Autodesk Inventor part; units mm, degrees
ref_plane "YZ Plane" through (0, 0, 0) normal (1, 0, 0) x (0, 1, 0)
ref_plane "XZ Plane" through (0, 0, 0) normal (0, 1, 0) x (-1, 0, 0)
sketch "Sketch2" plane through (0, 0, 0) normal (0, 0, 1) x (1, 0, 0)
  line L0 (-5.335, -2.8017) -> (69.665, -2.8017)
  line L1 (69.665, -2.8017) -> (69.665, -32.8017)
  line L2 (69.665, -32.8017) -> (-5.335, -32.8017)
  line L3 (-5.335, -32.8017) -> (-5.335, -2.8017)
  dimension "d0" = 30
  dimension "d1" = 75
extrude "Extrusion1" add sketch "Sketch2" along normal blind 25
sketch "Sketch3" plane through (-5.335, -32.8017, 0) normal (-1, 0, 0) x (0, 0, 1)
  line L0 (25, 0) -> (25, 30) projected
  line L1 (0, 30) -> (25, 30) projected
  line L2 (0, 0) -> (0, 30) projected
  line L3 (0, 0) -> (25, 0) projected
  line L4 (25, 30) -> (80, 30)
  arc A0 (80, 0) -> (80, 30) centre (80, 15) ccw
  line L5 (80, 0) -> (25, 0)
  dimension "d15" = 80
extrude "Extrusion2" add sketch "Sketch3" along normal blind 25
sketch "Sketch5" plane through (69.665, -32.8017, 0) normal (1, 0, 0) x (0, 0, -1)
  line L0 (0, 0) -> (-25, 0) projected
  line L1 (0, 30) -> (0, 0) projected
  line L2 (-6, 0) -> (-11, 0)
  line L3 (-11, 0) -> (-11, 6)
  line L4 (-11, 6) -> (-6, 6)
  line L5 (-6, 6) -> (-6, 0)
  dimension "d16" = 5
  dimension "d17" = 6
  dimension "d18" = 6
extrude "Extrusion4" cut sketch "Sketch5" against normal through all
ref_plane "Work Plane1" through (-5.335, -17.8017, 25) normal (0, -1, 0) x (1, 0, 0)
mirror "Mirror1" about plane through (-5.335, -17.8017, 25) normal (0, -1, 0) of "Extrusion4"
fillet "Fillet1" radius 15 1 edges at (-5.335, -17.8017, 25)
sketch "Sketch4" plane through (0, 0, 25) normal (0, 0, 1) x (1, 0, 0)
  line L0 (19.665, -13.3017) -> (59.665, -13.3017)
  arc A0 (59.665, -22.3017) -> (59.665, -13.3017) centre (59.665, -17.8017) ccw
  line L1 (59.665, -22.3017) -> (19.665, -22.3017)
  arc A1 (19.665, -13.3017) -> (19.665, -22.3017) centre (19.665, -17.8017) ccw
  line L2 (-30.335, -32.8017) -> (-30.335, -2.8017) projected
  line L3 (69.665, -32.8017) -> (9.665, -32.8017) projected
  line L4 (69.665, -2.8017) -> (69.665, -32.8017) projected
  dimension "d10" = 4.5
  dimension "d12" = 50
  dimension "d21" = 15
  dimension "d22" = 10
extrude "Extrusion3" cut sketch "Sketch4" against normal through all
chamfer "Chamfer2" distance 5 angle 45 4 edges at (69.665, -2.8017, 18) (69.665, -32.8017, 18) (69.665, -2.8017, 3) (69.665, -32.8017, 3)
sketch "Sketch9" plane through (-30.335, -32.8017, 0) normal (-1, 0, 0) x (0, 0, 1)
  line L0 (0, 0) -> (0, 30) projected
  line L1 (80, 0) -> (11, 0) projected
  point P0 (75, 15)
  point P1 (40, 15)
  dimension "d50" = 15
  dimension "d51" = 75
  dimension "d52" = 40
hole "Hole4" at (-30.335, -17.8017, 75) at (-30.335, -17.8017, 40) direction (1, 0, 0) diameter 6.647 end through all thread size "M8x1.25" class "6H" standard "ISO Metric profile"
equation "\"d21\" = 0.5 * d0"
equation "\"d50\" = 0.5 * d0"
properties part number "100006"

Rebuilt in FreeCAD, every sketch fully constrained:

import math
import FreeCAD as App
import Part
import Sketcher


def edges_at(feature, points):
    """Names of the edges that pass closest to the given points."""
    edges = feature.Shape.Edges
    near = lambda p: min(range(len(edges)), key=lambda i: edges[i].distToShape(Part.Vertex(*p))[0])
    return sorted({f"Edge{near(p) + 1}" for p in points})


def add_polygon(sketch, points):
    """Adds a closed chain of lines whose ends are joined by coincident constraints."""
    first, n = sketch.GeometryCount, len(points)
    for a, b in zip(points, points[1:] + points[:1]):
        sketch.addGeometry(Part.LineSegment(App.Vector(*a, 0), App.Vector(*b, 0)), False)
    for i in range(n):
        sketch.addConstraint(Sketcher.Constraint("Coincident", first + i, 2, first + (i + 1) % n, 1))

doc = App.newDocument("Part")
body = doc.addObject("PartDesign::Body", "Body")

# Sketch on XY plane
sketch1 = doc.addObject("Sketcher::SketchObject", "Sketch")
body.addObject(sketch1)
sketch1.AttachmentSupport = (doc.XY_Plane, [""])
sketch1.MapMode = "FlatFace"
add_polygon(sketch1, [(70, -3), (-5, -3), (-5, -33), (70, -33)])  # lines 0-3
sketch1.addConstraint([
    Sketcher.Constraint("Horizontal", 0),
    Sketcher.Constraint("Vertical", 1),
    Sketcher.Constraint("Horizontal", 2),
    Sketcher.Constraint("Vertical", 3),
    Sketcher.Constraint("DistanceX", 0, 2, 0, 1, 75.0),
    Sketcher.Constraint("DistanceY", 1, 2, 1, 1, 30.0),
    Sketcher.Constraint("DistanceX", 0, 2, -1, 1, 5.335),
    Sketcher.Constraint("DistanceY", 0, 2, -1, 1, 2.8017),
])
pad1 = doc.addObject("PartDesign::Pad", "Pad")
body.addObject(pad1)
pad1.Profile = sketch1
pad1.Length = 25

# Sketch on YZ plane
sketch2 = doc.addObject("Sketcher::SketchObject", "Sketch001")
body.addObject(sketch2)
sketch2.AttachmentSupport = (doc.YZ_Plane, [""])
sketch2.MapMode = "FlatFace"
sketch2.AttachmentOffset = App.Placement(App.Vector(0, 0, -5.335), App.Rotation())
sketch2.addGeometry([
    Part.LineSegment(App.Vector(-33, 0, 0), App.Vector(-33, 80, 0)),
    Part.ArcOfCircle(Part.Circle(App.Vector(-18, 80, 0), App.Vector(0, 0, 1), 15), math.radians(0), math.radians(180)),
    Part.LineSegment(App.Vector(-3, 80, 0), App.Vector(-3, 0, 0)),
    Part.LineSegment(App.Vector(-3, 0, 0), App.Vector(-33, 0, 0)),
], False)
sketch2.addConstraint([
    Sketcher.Constraint("Tangent", 0, 2, 1, 2),
    Sketcher.Constraint("Tangent", 1, 1, 2, 1),
    Sketcher.Constraint("Coincident", 2, 2, 3, 1),
    Sketcher.Constraint("Coincident", 3, 2, 0, 1),
    Sketcher.Constraint("Vertical", 0),
    Sketcher.Constraint("Vertical", 2),
    Sketcher.Constraint("Horizontal", 3),
    Sketcher.Constraint("PointOnObject", 2, 2, -1),
    Sketcher.Constraint("DistanceY", 0, 1, 0, 2, 80.0),
    Sketcher.Constraint("Radius", 1, 15.0),
    Sketcher.Constraint("DistanceX", 1, 3, -1, 1, 17.8017),
])
pad2 = doc.addObject("PartDesign::Pad", "Pad001")
body.addObject(pad2)
pad2.Profile = sketch2
pad2.Length = 25
pad2.Reversed = True

# Sketch on YZ plane
sketch3 = doc.addObject("Sketcher::SketchObject", "Sketch002")
body.addObject(sketch3)
sketch3.AttachmentSupport = (doc.YZ_Plane, [""])
sketch3.MapMode = "FlatFace"
sketch3.AttachmentOffset = App.Placement(App.Vector(0, 0, 69.665), App.Rotation())
add_polygon(sketch3, [(-33, 11), (-33, 6), (-27, 6), (-27, 11)])  # lines 0-3
sketch3.addConstraint([
    Sketcher.Constraint("Vertical", 0),
    Sketcher.Constraint("Horizontal", 1),
    Sketcher.Constraint("Vertical", 2),
    Sketcher.Constraint("Horizontal", 3),
    Sketcher.Constraint("DistanceX", 1, 1, 1, 2, 6.0),
    Sketcher.Constraint("DistanceY", 0, 2, 0, 1, 5.0),
    Sketcher.Constraint("DistanceY", -1, 1, 0, 2, 6.0),
    Sketcher.Constraint("DistanceX", 0, 2, -1, 1, 32.8017),
])
pocket1 = doc.addObject("PartDesign::Pocket", "Pocket")
body.addObject(pocket1)
pocket1.Profile = sketch3
pocket1.Type = "ThroughAll"
doc.recompute()

datumplane = doc.addObject("PartDesign::Plane", "DatumPlane")
body.addObject(datumplane)
datumplane.AttachmentSupport = (doc.XZ_Plane, [""])
datumplane.MapMode = "FlatFace"
datumplane.AttachmentOffset = App.Placement(App.Vector(0, 0, 17.8017), App.Rotation())
mirrored = doc.addObject("PartDesign::Mirrored", "Mirrored")
body.addObject(mirrored)
mirrored.Originals = [pocket1]
mirrored.MirrorPlane = (datumplane, [""])
body.Tip = mirrored
doc.recompute()

fillet = doc.addObject("PartDesign::Fillet", "Fillet")
body.addObject(fillet)
fillet.Base = (mirrored, edges_at(mirrored, [(-5.335, -17.802, 25)]))
fillet.Radius = 15

# Sketch on XY plane
sketch4 = doc.addObject("Sketcher::SketchObject", "Sketch003")
body.addObject(sketch4)
sketch4.AttachmentSupport = (doc.XY_Plane, [""])
sketch4.MapMode = "FlatFace"
sketch4.AttachmentOffset = App.Placement(App.Vector(0, 0, 25), App.Rotation())
sketch4.addGeometry([
    Part.LineSegment(App.Vector(59.7, -13.3, 0), App.Vector(19.7, -13.3, 0)),
    Part.ArcOfCircle(Part.Circle(App.Vector(19.7, -17.8, 0), App.Vector(0, 0, 1), 4.5), math.radians(90), math.radians(270)),
    Part.LineSegment(App.Vector(19.7, -22.3, 0), App.Vector(59.7, -22.3, 0)),
    Part.ArcOfCircle(Part.Circle(App.Vector(59.7, -17.8, 0), App.Vector(0, 0, 1), 4.5), math.radians(-90), math.radians(90)),
], False)
sketch4.addConstraint([
    Sketcher.Constraint("Tangent", 0, 2, 1, 1),
    Sketcher.Constraint("Tangent", 1, 2, 2, 1),
    Sketcher.Constraint("Tangent", 2, 2, 3, 1),
    Sketcher.Constraint("Tangent", 3, 2, 0, 1),
    Sketcher.Constraint("Horizontal", 0),
    Sketcher.Constraint("Horizontal", 2),
    Sketcher.Constraint("Radius", 1, 4.5),
    Sketcher.Constraint("DistanceX", 0, 2, 0, 1, 40.0),
    Sketcher.Constraint("DistanceX", -1, 1, 1, 3, 19.665),
    Sketcher.Constraint("DistanceY", 1, 3, -1, 1, 17.8017),
])
pocket2 = doc.addObject("PartDesign::Pocket", "Pocket001")
body.addObject(pocket2)
pocket2.Profile = sketch4
pocket2.Type = "ThroughAll"
doc.recompute()

chamfer = doc.addObject("PartDesign::Chamfer", "Chamfer")
body.addObject(chamfer)
chamfer.Base = (pocket2, edges_at(pocket2, [
    (69.665, -2.802, 18),
    (69.665, -32.802, 18),
    (69.665, -2.802, 3),
    (69.665, -32.802, 3),
]))
chamfer.Size = 5

# Sketch on YZ plane
sketch5 = doc.addObject("Sketcher::SketchObject", "Sketch004")
body.addObject(sketch5)
sketch5.AttachmentSupport = (doc.YZ_Plane, [""])
sketch5.MapMode = "FlatFace"
sketch5.AttachmentOffset = App.Placement(App.Vector(0, 0, -30.335), App.Rotation())
sketch5.addGeometry([
    Part.Circle(App.Vector(-17.8, 75, 0), App.Vector(0, 0, 1), 3.3),
    Part.Circle(App.Vector(-17.8, 40, 0), App.Vector(0, 0, 1), 3.3),
], False)
sketch5.addConstraint([
    Sketcher.Constraint("Equal", 0, 1),
    Sketcher.Constraint("Vertical", 0, 3, 1, 3),
    Sketcher.Constraint("Diameter", 0, 6.647),
    Sketcher.Constraint("DistanceY", -1, 1, 0, 3, 75.0),
    Sketcher.Constraint("DistanceY", -1, 1, 1, 3, 40.0),
    Sketcher.Constraint("DistanceX", 0, 3, -1, 1, 17.8017),
])
doc.recompute()
hole = doc.addObject("PartDesign::Hole", "Hole")
body.addObject(hole)
hole.Profile = sketch5
hole.ThreadType = "None"
hole.Diameter = 6.647
hole.DepthType = "ThroughAll"
hole.Reversed = True

doc.recompute()
